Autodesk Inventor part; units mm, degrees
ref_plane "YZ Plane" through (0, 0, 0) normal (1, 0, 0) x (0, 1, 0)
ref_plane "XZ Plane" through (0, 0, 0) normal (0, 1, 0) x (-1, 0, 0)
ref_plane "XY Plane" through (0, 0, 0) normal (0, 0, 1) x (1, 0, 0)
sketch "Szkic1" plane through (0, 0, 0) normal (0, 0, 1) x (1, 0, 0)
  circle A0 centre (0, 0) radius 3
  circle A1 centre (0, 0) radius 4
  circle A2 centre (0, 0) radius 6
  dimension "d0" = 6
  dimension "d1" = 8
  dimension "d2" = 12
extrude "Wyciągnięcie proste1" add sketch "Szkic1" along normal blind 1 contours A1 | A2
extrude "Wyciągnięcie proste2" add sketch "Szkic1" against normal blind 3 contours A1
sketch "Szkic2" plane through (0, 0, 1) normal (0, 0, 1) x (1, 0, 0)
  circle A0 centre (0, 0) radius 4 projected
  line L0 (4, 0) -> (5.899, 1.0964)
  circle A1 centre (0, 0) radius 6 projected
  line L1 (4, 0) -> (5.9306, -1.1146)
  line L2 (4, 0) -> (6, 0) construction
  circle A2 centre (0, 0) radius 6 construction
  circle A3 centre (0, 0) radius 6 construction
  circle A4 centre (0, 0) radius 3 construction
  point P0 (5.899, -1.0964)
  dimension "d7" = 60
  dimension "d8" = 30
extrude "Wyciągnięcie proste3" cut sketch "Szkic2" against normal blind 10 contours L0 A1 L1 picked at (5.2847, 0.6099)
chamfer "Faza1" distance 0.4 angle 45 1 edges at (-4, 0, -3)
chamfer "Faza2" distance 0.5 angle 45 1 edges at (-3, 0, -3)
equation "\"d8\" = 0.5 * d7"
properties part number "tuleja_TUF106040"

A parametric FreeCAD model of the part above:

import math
import FreeCAD as App
import Part
import Sketcher
Q = App.Units.Quantity


def edges_at(feature, points):
    """Names of the edges that pass closest to the given points."""
    edges = feature.Shape.Edges
    near = lambda p: min(range(len(edges)), key=lambda i: edges[i].distToShape(Part.Vertex(*p))[0])
    return sorted({f"Edge{near(p) + 1}" for p in points})

doc = App.newDocument("Part")
params = doc.addObject("Spreadsheet::Sheet", "Params")
for row, (alias, value) in enumerate([
    ("sketch1_diameter", "12 mm"),
    ("sketch1_diameter2", "6 mm"),
    ("pad1_length", "1 mm"),
    ("sketch2_diameter", "8 mm"),
    ("sketch2_diameter2", "6 mm"),
    ("pad2_length", "3 mm"),
    ("sketch3_radius", "6 mm"),
    ("pocket1_length", "10 mm"),
    ("chamfer_size", "0.4 mm"),
    ("chamfer2_size", "0.5 mm"),
], start=1):
    params.set(f"A{row}", alias)
    params.set(f"B{row}", "=" + value)
    params.setAlias(f"B{row}", alias)

body = doc.addObject("PartDesign::Body", "Body")

sketch1 = doc.addObject("Sketcher::SketchObject", "Sketch")
body.addObject(sketch1)
sketch1.AttachmentSupport = (doc.XY_Plane, [""])
sketch1.MapMode = "FlatFace"
sketch1.addGeometry([
    Part.Circle(App.Vector(0, 0, 0), App.Vector(0, 0, 1), 6),
    Part.Circle(App.Vector(0, 0, 0), App.Vector(0, 0, 1), 3),
], False)
sketch1.addConstraint([
    Sketcher.Constraint("Coincident", 0, 3, -1, 1),
    Sketcher.Constraint("Coincident", 1, 3, -1, 1),
    Sketcher.Constraint("Diameter", 0, Q("12 mm")),
    Sketcher.Constraint("Diameter", 1, Q("6 mm")),
])
sketch1.setExpression("Constraints[2]", "Params.sketch1_diameter")
sketch1.setExpression("Constraints[3]", "Params.sketch1_diameter2")
pad1 = doc.addObject("PartDesign::Pad", "Pad")
body.addObject(pad1)
pad1.Profile = sketch1
pad1.setExpression("Length", "Params.pad1_length")

sketch2 = doc.addObject("Sketcher::SketchObject", "Sketch001")
body.addObject(sketch2)
sketch2.AttachmentSupport = (doc.XY_Plane, [""])
sketch2.MapMode = "FlatFace"
sketch2.addGeometry([
    Part.Circle(App.Vector(0, 0, 0), App.Vector(0, 0, 1), 4),
    Part.Circle(App.Vector(0, 0, 0), App.Vector(0, 0, 1), 3),
], False)
sketch2.addConstraint([
    Sketcher.Constraint("Coincident", 0, 3, -1, 1),
    Sketcher.Constraint("Coincident", 1, 3, -1, 1),
    Sketcher.Constraint("Diameter", 0, Q("8 mm")),
    Sketcher.Constraint("Diameter", 1, Q("6 mm")),
])
sketch2.setExpression("Constraints[2]", "Params.sketch2_diameter")
sketch2.setExpression("Constraints[3]", "Params.sketch2_diameter2")
pad2 = doc.addObject("PartDesign::Pad", "Pad001")
body.addObject(pad2)
pad2.Profile = sketch2
pad2.setExpression("Length", "Params.pad2_length")
pad2.Reversed = True

sketch3 = doc.addObject("Sketcher::SketchObject", "Sketch002")
body.addObject(sketch3)
sketch3.AttachmentSupport = (doc.XY_Plane, [""])
sketch3.MapMode = "FlatFace"
sketch3.AttachmentOffset = App.Placement(App.Vector(0, 0, 1), App.Rotation())
sketch3.addGeometry([
    Part.LineSegment(App.Vector(5.899, 1.0964, 0), App.Vector(4, 0, 0)),
    Part.LineSegment(App.Vector(4, 0, 0), App.Vector(5.898985, -1.096348, 0)),
    Part.ArcOfCircle(Part.Circle(App.Vector(0, 0, 0), App.Vector(0, 0, 1), 6), math.radians(-10.5285), math.radians(10.528966)),
], False)
sketch3.addConstraint([
    Sketcher.Constraint("Coincident", 0, 2, 1, 1),
    Sketcher.Constraint("Coincident", 1, 2, 2, 1),
    Sketcher.Constraint("Coincident", 2, 2, 0, 1),
    Sketcher.Constraint("Coincident", 2, 3, -1, 1),
    Sketcher.Constraint("PointOnObject", 0, 2, -1),
    Sketcher.Constraint("Vertical", 1, 2, 2, 2),
    Sketcher.Constraint("Radius", 2, Q("6 mm")),
    Sketcher.Constraint("Angle", 0, Q("-149.9997 deg")),
    Sketcher.Constraint("DistanceX", -1, 1, 0, 2, Q("4 mm")),
])
sketch3.setExpression("Constraints[6]", "Params.sketch3_radius")
pocket1 = doc.addObject("PartDesign::Pocket", "Pocket")
body.addObject(pocket1)
pocket1.Profile = sketch3
pocket1.setExpression("Length", "Params.pocket1_length")
doc.recompute()

chamfer = doc.addObject("PartDesign::Chamfer", "Chamfer")
body.addObject(chamfer)
chamfer.Base = (pocket1, edges_at(pocket1, [(-4, 0, -3)]))
chamfer.setExpression("Size", "Params.chamfer_size")
doc.recompute()

chamfer2 = doc.addObject("PartDesign::Chamfer", "Chamfer001")
body.addObject(chamfer2)
chamfer2.Base = (chamfer, edges_at(chamfer, [(-3, 0, -3)]))
chamfer2.setExpression("Size", "Params.chamfer2_size")

doc.recompute()
